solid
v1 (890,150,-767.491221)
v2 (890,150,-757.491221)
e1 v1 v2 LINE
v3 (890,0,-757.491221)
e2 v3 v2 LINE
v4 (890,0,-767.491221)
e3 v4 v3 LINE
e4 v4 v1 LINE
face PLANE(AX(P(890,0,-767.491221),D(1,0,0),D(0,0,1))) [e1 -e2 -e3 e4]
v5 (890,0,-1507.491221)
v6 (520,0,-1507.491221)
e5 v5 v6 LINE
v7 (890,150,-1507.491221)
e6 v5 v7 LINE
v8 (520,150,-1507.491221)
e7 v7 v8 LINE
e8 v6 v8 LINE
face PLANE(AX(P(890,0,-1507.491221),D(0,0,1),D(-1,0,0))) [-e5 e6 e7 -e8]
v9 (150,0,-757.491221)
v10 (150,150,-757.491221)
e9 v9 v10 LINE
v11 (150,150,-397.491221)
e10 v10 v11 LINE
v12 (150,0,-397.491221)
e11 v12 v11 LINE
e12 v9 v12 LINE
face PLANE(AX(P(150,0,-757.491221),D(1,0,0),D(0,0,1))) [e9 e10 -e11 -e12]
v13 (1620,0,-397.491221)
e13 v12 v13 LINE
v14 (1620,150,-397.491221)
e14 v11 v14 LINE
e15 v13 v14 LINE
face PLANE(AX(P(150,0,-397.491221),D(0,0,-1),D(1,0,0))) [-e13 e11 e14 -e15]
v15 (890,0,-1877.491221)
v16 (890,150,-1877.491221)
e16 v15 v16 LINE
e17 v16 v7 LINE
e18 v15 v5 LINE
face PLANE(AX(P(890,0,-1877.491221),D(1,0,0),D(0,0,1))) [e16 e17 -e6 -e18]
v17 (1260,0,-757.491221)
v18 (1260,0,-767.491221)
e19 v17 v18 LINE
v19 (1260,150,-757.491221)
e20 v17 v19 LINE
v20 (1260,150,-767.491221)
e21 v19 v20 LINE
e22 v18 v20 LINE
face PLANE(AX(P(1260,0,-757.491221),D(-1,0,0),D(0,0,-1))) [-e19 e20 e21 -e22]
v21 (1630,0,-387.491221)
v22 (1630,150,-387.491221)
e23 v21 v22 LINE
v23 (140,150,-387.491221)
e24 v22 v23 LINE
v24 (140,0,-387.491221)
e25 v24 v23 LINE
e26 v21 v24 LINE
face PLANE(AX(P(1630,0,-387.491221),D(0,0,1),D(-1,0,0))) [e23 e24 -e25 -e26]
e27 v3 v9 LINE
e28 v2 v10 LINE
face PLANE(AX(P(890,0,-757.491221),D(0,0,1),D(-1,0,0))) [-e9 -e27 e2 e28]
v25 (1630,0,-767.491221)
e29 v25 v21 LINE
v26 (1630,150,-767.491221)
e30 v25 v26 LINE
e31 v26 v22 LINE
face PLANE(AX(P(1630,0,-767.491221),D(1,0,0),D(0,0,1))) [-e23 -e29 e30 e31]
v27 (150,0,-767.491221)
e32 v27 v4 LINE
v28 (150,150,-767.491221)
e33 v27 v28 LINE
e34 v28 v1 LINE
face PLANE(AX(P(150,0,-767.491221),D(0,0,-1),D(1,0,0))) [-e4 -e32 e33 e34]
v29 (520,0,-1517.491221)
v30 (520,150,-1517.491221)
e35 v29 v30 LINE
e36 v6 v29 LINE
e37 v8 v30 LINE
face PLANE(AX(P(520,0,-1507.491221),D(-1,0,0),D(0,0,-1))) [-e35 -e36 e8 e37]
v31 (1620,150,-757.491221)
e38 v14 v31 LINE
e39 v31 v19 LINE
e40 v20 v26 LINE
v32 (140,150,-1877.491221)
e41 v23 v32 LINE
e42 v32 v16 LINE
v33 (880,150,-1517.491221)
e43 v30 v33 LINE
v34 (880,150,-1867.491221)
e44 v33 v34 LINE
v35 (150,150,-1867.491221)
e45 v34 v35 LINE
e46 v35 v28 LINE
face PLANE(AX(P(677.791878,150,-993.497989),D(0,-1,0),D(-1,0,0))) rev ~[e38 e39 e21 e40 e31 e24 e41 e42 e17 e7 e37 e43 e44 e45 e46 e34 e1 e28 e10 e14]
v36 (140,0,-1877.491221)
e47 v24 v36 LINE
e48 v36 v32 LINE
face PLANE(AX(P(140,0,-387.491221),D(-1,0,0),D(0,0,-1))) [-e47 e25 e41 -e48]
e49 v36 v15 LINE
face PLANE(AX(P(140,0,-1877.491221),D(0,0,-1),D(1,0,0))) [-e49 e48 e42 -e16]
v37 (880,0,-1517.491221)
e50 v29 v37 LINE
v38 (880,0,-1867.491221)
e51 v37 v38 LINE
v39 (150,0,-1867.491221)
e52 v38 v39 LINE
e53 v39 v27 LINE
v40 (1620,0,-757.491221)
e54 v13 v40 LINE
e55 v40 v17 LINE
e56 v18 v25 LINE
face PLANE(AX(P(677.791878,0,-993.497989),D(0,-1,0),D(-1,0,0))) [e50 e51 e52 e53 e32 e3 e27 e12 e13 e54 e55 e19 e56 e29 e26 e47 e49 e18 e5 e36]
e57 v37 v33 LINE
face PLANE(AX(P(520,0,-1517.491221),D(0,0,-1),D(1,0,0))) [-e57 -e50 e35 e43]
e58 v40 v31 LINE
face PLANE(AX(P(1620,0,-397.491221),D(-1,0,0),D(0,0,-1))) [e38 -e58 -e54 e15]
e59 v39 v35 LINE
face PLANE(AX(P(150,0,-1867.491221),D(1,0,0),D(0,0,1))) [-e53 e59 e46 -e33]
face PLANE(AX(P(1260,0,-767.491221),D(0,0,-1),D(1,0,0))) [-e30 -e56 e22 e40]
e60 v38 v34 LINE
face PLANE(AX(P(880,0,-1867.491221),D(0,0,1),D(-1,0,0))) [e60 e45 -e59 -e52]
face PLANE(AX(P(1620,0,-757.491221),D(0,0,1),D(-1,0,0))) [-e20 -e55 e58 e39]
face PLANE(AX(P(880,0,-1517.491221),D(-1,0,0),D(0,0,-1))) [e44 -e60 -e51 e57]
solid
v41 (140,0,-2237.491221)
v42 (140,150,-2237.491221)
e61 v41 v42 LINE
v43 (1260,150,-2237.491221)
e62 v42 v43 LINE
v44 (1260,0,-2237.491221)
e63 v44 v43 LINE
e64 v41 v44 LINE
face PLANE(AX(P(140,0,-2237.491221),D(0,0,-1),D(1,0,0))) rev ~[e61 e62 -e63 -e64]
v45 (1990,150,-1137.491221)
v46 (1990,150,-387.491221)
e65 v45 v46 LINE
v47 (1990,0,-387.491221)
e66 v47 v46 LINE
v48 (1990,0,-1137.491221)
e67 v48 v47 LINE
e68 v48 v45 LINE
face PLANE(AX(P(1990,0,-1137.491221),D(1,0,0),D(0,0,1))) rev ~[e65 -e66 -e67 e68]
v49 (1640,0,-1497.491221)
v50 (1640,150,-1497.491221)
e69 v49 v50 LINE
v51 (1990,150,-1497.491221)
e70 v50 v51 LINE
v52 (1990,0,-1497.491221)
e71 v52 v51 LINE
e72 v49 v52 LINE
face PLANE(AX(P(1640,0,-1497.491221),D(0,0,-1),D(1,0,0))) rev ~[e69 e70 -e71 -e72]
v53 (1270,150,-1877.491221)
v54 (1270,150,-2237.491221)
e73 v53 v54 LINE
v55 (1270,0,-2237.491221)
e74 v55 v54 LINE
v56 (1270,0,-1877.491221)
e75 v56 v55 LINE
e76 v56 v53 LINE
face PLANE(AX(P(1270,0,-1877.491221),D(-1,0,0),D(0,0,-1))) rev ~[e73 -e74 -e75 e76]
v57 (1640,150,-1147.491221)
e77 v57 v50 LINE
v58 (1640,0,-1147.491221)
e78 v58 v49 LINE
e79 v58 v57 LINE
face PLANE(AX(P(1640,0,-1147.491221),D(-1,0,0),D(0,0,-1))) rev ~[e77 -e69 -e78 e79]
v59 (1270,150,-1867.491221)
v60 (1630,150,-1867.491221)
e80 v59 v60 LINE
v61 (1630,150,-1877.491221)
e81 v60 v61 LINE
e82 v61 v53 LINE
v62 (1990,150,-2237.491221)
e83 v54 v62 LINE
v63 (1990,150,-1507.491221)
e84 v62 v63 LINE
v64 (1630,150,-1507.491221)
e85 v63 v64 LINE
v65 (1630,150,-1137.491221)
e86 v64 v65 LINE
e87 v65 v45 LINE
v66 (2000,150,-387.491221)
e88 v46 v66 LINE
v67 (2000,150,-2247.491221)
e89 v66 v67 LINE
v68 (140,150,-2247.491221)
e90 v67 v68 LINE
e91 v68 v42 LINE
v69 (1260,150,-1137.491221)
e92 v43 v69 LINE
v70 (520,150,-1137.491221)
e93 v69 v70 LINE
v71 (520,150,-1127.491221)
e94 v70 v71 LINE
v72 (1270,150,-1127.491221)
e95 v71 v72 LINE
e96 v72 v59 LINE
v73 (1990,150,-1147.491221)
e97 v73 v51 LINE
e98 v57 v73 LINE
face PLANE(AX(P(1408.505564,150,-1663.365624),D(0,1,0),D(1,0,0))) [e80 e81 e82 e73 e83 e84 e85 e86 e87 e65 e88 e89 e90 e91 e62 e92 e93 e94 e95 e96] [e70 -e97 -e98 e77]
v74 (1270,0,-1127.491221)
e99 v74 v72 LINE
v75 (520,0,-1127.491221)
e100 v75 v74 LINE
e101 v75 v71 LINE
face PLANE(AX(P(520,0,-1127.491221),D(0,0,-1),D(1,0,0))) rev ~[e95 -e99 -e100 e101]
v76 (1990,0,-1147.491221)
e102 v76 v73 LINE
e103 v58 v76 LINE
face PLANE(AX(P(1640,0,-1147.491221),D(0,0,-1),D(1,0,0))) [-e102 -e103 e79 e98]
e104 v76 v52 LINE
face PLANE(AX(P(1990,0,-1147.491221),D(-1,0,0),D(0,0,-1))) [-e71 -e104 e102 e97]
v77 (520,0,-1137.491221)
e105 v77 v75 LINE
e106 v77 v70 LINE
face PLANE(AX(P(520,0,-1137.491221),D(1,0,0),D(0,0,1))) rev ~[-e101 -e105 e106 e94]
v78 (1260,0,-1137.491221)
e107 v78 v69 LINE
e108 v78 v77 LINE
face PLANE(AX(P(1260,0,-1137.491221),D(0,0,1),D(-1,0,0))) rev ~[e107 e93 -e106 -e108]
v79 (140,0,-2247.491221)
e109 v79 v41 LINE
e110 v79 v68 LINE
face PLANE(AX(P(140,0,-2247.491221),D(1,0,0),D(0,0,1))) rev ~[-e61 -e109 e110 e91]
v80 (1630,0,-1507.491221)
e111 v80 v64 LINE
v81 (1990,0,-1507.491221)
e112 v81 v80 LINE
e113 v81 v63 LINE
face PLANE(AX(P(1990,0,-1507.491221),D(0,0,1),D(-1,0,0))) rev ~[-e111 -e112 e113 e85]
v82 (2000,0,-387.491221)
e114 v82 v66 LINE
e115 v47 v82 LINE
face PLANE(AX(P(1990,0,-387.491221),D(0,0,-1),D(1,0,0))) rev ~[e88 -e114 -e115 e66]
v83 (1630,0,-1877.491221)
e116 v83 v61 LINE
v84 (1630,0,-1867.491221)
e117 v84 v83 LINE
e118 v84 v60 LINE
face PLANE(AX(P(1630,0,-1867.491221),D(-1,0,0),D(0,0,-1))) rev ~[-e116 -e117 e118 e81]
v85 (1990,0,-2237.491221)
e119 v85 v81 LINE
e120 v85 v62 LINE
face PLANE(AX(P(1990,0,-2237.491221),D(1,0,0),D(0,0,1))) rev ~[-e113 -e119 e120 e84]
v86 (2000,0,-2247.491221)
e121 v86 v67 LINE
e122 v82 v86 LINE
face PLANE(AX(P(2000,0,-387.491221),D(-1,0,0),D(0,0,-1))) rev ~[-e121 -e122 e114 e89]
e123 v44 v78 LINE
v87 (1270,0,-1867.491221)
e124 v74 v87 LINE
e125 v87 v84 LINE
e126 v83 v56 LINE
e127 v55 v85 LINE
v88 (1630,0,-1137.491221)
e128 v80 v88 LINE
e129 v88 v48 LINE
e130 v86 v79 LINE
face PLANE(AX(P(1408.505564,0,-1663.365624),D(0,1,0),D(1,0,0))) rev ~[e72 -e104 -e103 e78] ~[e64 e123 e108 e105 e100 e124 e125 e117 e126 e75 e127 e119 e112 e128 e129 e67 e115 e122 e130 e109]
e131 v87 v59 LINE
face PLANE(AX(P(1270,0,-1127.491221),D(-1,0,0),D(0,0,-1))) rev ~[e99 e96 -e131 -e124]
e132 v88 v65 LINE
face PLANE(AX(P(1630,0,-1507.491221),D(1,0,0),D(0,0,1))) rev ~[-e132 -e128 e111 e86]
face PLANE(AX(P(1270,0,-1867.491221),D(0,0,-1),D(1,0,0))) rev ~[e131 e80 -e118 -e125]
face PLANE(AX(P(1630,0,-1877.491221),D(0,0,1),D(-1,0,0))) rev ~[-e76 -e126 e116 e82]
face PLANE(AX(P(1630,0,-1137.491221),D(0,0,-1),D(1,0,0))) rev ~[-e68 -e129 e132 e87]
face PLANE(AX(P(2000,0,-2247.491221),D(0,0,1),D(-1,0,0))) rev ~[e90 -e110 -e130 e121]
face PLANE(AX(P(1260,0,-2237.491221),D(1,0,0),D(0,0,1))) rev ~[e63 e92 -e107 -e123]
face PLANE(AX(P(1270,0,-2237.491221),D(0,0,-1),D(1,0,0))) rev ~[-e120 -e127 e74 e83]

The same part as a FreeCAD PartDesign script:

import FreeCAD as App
import Part
import Sketcher
from FreeCAD import Vector
Q = App.Units.Quantity


def add_polygon(sketch, points):
    """Adds a closed chain of lines whose ends are joined by coincident constraints."""
    first, n = sketch.GeometryCount, len(points)
    for a, b in zip(points, points[1:] + points[:1]):
        sketch.addGeometry(Part.LineSegment(App.Vector(*a, 0), App.Vector(*b, 0)), False)
    for i in range(n):
        sketch.addConstraint(Sketcher.Constraint("Coincident", first + i, 2, first + (i + 1) % n, 1))

doc = App.newDocument("Part")
body = doc.addObject("PartDesign::Body", "Body")

# Sketch on XZ plane
sketch1 = doc.addObject("Sketcher::SketchObject", "Sketch")
body.addObject(sketch1)
sketch1.AttachmentSupport = (doc.XZ_Plane, [""])
sketch1.MapMode = "FlatFace"
add_polygon(sketch1, [(150, -397.491221), (150, -757.491221), (890, -757.491221), (890, -767.491221), (150, -767.491221), (150, -1867.491221), (880, -1867.491221), (880, -1517.491221), (520, -1517.491221), (520, -1507.491221), (890, -1507.491221), (890, -1877.491221), (140, -1877.491221), (140, -387.491221), (1630, -387.491221), (1630, -767.491221), (1260, -767.491221), (1260, -757.491221), (1620, -757.491221), (1620, -397.491221)])  # lines 0-19
sketch1.addConstraint(Sketcher.Constraint("Vertical", 0))
sketch1.addConstraint(Sketcher.Constraint("Horizontal", 1))
sketch1.addConstraint(Sketcher.Constraint("Vertical", 2))
sketch1.addConstraint(Sketcher.Constraint("Horizontal", 3))
sketch1.addConstraint(Sketcher.Constraint("Vertical", 4))
sketch1.addConstraint(Sketcher.Constraint("Horizontal", 5))
sketch1.addConstraint(Sketcher.Constraint("Vertical", 6))
sketch1.addConstraint(Sketcher.Constraint("Horizontal", 7))
sketch1.addConstraint(Sketcher.Constraint("Vertical", 8))
sketch1.addConstraint(Sketcher.Constraint("Horizontal", 9))
sketch1.addConstraint(Sketcher.Constraint("Vertical", 10))
sketch1.addConstraint(Sketcher.Constraint("Horizontal", 11))
sketch1.addConstraint(Sketcher.Constraint("Vertical", 12))
sketch1.addConstraint(Sketcher.Constraint("Horizontal", 13))
sketch1.addConstraint(Sketcher.Constraint("Vertical", 14))
sketch1.addConstraint(Sketcher.Constraint("Horizontal", 15))
sketch1.addConstraint(Sketcher.Constraint("Vertical", 16))
sketch1.addConstraint(Sketcher.Constraint("Horizontal", 17))
sketch1.addConstraint(Sketcher.Constraint("Vertical", 18))
sketch1.addConstraint(Sketcher.Constraint("Horizontal", 19))
sketch1.addConstraint(Sketcher.Constraint("Horizontal", 3, 2, 14, 2))
sketch1.addConstraint(Sketcher.Constraint("Horizontal", 1, 2, 16, 2))
sketch1.addConstraint(Sketcher.Constraint("Vertical", 0, 2, 3, 2))
sketch1.addConstraint(Sketcher.Constraint("Vertical", 2, 2, 9, 2))
sketch1.addConstraint(Sketcher.Constraint("Equal", 9, 15))
sketch1.addConstraint(Sketcher.Constraint("Equal", 7, 17))
sketch1.addConstraint(Sketcher.Constraint("Equal", 17, 0))
sketch1.addConstraint(Sketcher.Constraint("Equal", 2, 8))
sketch1.addConstraint(Sketcher.Constraint("Equal", 15, 10))
sketch1.addConstraint(Sketcher.Constraint("Equal", 13, 12))
sketch1.addConstraint(Sketcher.Constraint("DistanceX", 1, 1, 1, 2, Q("740 mm")))
sketch1.addConstraint(Sketcher.Constraint("DistanceX", 5, 1, 5, 2, Q("730 mm")))
sketch1.addConstraint(Sketcher.Constraint("DistanceX", 7, 2, 7, 1, Q("360 mm")))
sketch1.addConstraint(Sketcher.Constraint("DistanceX", 11, 2, 11, 1, Q("750 mm")))
sketch1.addConstraint(Sketcher.Constraint("DistanceX", 13, 1, 13, 2, Q("1490 mm")))
sketch1.addConstraint(Sketcher.Constraint("DistanceY", 2, 2, 2, 1, Q("10 mm")))
sketch1.addConstraint(Sketcher.Constraint("DistanceY", 4, 2, 4, 1, Q("1100 mm")))
sketch1.addConstraint(Sketcher.Constraint("DistanceY", 6, 1, 6, 2, Q("350 mm")))
sketch1.addConstraint(Sketcher.Constraint("DistanceX", -1, 1, 0, 2, Q("150 mm")))
sketch1.addConstraint(Sketcher.Constraint("DistanceY", 0, 2, -1, 1, Q("757.491221 mm")))
pad1 = doc.addObject("PartDesign::Pad", "Pad")
body.addObject(pad1)
pad1.Profile = sketch1
pad1.Length = 150
pad1.Reversed = True
body2 = doc.addObject("PartDesign::Body", "Body001")

# Sketch on XZ plane
sketch2 = doc.addObject("Sketcher::SketchObject", "Sketch001")
body2.addObject(sketch2)
sketch2.AttachmentSupport = (doc.getObject("XZ_Plane001"), [""])
sketch2.MapMode = "FlatFace"
add_polygon(sketch2, [(2000, -387.491221), (2000, -2247.491221), (140, -2247.491221), (140, -2237.491221), (1260, -2237.491221), (1260, -1137.491221), (520, -1137.491221), (520, -1127.491221), (1270, -1127.491221), (1270, -1867.491221), (1630, -1867.491221), (1630, -1877.491221), (1270, -1877.491221), (1270, -2237.491221), (1990, -2237.491221), (1990, -1507.491221), (1630, -1507.491221), (1630, -1137.491221), (1990, -1137.491221), (1990, -387.491221)])  # lines 0-19
add_polygon(sketch2, [(1990, -1147.491221), (1640, -1147.491221), (1640, -1497.491221), (1990, -1497.491221)])  # lines 20-23
sketch2.addConstraint(Sketcher.Constraint("Vertical", 0))
sketch2.addConstraint(Sketcher.Constraint("Horizontal", 1))
sketch2.addConstraint(Sketcher.Constraint("Vertical", 2))
sketch2.addConstraint(Sketcher.Constraint("Horizontal", 3))
sketch2.addConstraint(Sketcher.Constraint("Vertical", 4))
sketch2.addConstraint(Sketcher.Constraint("Horizontal", 5))
sketch2.addConstraint(Sketcher.Constraint("Vertical", 6))
sketch2.addConstraint(Sketcher.Constraint("Horizontal", 7))
sketch2.addConstraint(Sketcher.Constraint("Vertical", 8))
sketch2.addConstraint(Sketcher.Constraint("Horizontal", 9))
sketch2.addConstraint(Sketcher.Constraint("Vertical", 10))
sketch2.addConstraint(Sketcher.Constraint("Horizontal", 11))
sketch2.addConstraint(Sketcher.Constraint("Vertical", 12))
sketch2.addConstraint(Sketcher.Constraint("Horizontal", 13))
sketch2.addConstraint(Sketcher.Constraint("Vertical", 14))
sketch2.addConstraint(Sketcher.Constraint("Horizontal", 15))
sketch2.addConstraint(Sketcher.Constraint("Vertical", 16))
sketch2.addConstraint(Sketcher.Constraint("Horizontal", 17))
sketch2.addConstraint(Sketcher.Constraint("Vertical", 18))
sketch2.addConstraint(Sketcher.Constraint("Horizontal", 19))
sketch2.addConstraint(Sketcher.Constraint("Horizontal", 20))
sketch2.addConstraint(Sketcher.Constraint("Vertical", 21))
sketch2.addConstraint(Sketcher.Constraint("Horizontal", 22))
sketch2.addConstraint(Sketcher.Constraint("Vertical", 23))
sketch2.addConstraint(Sketcher.Constraint("Horizontal", 3, 2, 12, 2))
sketch2.addConstraint(Sketcher.Constraint("Horizontal", 5, 2, 16, 2))
sketch2.addConstraint(Sketcher.Constraint("Vertical", 8, 2, 11, 2))
sketch2.addConstraint(Sketcher.Constraint("Vertical", 10, 2, 15, 2))
sketch2.addConstraint(Sketcher.Constraint("Vertical", 14, 2, 17, 2))
sketch2.addConstraint(Sketcher.Constraint("Vertical", 18, 2, 22, 2))
sketch2.addConstraint(Sketcher.Constraint("Equal", 11, 15))
sketch2.addConstraint(Sketcher.Constraint("Equal", 1, 0))
sketch2.addConstraint(Sketcher.Constraint("Equal", 19, 2))
sketch2.addConstraint(Sketcher.Constraint("Equal", 2, 6))
sketch2.addConstraint(Sketcher.Constraint("Equal", 5, 8))
sketch2.addConstraint(Sketcher.Constraint("Equal", 6, 10))
sketch2.addConstraint(Sketcher.Constraint("Equal", 17, 12))
sketch2.addConstraint(Sketcher.Constraint("Equal", 7, 18))
sketch2.addConstraint(Sketcher.Constraint("Equal", 22, 21))
sketch2.addConstraint(Sketcher.Constraint("DistanceX", 1, 2, 1, 1, Q("1860 mm")))
sketch2.addConstraint(Sketcher.Constraint("DistanceX", 3, 1, 3, 2, Q("1120 mm")))
sketch2.addConstraint(Sketcher.Constraint("DistanceX", 5, 2, 5, 1, Q("740 mm")))
sketch2.addConstraint(Sketcher.Constraint("DistanceX", 7, 1, 7, 2, Q("750 mm")))
sketch2.addConstraint(Sketcher.Constraint("DistanceX", 20, 2, 20, 1, Q("350 mm")))
sketch2.addConstraint(Sketcher.Constraint("DistanceY", 14, 1, 14, 2, Q("730 mm")))
sketch2.addConstraint(Sketcher.Constraint("DistanceX", -1, 1, 0, 2, Q("2000 mm")))
sketch2.addConstraint(Sketcher.Constraint("DistanceY", 20, 2, 16, 2, Q("10 mm")))
sketch2.addConstraint(Sketcher.Constraint("DistanceY", 0, 2, -1, 1, Q("2247.491221 mm")))
pad2 = doc.addObject("PartDesign::Pad", "Pad001")
body2.addObject(pad2)
pad2.Profile = sketch2
pad2.Length = 150
pad2.Reversed = True

doc.recompute()
